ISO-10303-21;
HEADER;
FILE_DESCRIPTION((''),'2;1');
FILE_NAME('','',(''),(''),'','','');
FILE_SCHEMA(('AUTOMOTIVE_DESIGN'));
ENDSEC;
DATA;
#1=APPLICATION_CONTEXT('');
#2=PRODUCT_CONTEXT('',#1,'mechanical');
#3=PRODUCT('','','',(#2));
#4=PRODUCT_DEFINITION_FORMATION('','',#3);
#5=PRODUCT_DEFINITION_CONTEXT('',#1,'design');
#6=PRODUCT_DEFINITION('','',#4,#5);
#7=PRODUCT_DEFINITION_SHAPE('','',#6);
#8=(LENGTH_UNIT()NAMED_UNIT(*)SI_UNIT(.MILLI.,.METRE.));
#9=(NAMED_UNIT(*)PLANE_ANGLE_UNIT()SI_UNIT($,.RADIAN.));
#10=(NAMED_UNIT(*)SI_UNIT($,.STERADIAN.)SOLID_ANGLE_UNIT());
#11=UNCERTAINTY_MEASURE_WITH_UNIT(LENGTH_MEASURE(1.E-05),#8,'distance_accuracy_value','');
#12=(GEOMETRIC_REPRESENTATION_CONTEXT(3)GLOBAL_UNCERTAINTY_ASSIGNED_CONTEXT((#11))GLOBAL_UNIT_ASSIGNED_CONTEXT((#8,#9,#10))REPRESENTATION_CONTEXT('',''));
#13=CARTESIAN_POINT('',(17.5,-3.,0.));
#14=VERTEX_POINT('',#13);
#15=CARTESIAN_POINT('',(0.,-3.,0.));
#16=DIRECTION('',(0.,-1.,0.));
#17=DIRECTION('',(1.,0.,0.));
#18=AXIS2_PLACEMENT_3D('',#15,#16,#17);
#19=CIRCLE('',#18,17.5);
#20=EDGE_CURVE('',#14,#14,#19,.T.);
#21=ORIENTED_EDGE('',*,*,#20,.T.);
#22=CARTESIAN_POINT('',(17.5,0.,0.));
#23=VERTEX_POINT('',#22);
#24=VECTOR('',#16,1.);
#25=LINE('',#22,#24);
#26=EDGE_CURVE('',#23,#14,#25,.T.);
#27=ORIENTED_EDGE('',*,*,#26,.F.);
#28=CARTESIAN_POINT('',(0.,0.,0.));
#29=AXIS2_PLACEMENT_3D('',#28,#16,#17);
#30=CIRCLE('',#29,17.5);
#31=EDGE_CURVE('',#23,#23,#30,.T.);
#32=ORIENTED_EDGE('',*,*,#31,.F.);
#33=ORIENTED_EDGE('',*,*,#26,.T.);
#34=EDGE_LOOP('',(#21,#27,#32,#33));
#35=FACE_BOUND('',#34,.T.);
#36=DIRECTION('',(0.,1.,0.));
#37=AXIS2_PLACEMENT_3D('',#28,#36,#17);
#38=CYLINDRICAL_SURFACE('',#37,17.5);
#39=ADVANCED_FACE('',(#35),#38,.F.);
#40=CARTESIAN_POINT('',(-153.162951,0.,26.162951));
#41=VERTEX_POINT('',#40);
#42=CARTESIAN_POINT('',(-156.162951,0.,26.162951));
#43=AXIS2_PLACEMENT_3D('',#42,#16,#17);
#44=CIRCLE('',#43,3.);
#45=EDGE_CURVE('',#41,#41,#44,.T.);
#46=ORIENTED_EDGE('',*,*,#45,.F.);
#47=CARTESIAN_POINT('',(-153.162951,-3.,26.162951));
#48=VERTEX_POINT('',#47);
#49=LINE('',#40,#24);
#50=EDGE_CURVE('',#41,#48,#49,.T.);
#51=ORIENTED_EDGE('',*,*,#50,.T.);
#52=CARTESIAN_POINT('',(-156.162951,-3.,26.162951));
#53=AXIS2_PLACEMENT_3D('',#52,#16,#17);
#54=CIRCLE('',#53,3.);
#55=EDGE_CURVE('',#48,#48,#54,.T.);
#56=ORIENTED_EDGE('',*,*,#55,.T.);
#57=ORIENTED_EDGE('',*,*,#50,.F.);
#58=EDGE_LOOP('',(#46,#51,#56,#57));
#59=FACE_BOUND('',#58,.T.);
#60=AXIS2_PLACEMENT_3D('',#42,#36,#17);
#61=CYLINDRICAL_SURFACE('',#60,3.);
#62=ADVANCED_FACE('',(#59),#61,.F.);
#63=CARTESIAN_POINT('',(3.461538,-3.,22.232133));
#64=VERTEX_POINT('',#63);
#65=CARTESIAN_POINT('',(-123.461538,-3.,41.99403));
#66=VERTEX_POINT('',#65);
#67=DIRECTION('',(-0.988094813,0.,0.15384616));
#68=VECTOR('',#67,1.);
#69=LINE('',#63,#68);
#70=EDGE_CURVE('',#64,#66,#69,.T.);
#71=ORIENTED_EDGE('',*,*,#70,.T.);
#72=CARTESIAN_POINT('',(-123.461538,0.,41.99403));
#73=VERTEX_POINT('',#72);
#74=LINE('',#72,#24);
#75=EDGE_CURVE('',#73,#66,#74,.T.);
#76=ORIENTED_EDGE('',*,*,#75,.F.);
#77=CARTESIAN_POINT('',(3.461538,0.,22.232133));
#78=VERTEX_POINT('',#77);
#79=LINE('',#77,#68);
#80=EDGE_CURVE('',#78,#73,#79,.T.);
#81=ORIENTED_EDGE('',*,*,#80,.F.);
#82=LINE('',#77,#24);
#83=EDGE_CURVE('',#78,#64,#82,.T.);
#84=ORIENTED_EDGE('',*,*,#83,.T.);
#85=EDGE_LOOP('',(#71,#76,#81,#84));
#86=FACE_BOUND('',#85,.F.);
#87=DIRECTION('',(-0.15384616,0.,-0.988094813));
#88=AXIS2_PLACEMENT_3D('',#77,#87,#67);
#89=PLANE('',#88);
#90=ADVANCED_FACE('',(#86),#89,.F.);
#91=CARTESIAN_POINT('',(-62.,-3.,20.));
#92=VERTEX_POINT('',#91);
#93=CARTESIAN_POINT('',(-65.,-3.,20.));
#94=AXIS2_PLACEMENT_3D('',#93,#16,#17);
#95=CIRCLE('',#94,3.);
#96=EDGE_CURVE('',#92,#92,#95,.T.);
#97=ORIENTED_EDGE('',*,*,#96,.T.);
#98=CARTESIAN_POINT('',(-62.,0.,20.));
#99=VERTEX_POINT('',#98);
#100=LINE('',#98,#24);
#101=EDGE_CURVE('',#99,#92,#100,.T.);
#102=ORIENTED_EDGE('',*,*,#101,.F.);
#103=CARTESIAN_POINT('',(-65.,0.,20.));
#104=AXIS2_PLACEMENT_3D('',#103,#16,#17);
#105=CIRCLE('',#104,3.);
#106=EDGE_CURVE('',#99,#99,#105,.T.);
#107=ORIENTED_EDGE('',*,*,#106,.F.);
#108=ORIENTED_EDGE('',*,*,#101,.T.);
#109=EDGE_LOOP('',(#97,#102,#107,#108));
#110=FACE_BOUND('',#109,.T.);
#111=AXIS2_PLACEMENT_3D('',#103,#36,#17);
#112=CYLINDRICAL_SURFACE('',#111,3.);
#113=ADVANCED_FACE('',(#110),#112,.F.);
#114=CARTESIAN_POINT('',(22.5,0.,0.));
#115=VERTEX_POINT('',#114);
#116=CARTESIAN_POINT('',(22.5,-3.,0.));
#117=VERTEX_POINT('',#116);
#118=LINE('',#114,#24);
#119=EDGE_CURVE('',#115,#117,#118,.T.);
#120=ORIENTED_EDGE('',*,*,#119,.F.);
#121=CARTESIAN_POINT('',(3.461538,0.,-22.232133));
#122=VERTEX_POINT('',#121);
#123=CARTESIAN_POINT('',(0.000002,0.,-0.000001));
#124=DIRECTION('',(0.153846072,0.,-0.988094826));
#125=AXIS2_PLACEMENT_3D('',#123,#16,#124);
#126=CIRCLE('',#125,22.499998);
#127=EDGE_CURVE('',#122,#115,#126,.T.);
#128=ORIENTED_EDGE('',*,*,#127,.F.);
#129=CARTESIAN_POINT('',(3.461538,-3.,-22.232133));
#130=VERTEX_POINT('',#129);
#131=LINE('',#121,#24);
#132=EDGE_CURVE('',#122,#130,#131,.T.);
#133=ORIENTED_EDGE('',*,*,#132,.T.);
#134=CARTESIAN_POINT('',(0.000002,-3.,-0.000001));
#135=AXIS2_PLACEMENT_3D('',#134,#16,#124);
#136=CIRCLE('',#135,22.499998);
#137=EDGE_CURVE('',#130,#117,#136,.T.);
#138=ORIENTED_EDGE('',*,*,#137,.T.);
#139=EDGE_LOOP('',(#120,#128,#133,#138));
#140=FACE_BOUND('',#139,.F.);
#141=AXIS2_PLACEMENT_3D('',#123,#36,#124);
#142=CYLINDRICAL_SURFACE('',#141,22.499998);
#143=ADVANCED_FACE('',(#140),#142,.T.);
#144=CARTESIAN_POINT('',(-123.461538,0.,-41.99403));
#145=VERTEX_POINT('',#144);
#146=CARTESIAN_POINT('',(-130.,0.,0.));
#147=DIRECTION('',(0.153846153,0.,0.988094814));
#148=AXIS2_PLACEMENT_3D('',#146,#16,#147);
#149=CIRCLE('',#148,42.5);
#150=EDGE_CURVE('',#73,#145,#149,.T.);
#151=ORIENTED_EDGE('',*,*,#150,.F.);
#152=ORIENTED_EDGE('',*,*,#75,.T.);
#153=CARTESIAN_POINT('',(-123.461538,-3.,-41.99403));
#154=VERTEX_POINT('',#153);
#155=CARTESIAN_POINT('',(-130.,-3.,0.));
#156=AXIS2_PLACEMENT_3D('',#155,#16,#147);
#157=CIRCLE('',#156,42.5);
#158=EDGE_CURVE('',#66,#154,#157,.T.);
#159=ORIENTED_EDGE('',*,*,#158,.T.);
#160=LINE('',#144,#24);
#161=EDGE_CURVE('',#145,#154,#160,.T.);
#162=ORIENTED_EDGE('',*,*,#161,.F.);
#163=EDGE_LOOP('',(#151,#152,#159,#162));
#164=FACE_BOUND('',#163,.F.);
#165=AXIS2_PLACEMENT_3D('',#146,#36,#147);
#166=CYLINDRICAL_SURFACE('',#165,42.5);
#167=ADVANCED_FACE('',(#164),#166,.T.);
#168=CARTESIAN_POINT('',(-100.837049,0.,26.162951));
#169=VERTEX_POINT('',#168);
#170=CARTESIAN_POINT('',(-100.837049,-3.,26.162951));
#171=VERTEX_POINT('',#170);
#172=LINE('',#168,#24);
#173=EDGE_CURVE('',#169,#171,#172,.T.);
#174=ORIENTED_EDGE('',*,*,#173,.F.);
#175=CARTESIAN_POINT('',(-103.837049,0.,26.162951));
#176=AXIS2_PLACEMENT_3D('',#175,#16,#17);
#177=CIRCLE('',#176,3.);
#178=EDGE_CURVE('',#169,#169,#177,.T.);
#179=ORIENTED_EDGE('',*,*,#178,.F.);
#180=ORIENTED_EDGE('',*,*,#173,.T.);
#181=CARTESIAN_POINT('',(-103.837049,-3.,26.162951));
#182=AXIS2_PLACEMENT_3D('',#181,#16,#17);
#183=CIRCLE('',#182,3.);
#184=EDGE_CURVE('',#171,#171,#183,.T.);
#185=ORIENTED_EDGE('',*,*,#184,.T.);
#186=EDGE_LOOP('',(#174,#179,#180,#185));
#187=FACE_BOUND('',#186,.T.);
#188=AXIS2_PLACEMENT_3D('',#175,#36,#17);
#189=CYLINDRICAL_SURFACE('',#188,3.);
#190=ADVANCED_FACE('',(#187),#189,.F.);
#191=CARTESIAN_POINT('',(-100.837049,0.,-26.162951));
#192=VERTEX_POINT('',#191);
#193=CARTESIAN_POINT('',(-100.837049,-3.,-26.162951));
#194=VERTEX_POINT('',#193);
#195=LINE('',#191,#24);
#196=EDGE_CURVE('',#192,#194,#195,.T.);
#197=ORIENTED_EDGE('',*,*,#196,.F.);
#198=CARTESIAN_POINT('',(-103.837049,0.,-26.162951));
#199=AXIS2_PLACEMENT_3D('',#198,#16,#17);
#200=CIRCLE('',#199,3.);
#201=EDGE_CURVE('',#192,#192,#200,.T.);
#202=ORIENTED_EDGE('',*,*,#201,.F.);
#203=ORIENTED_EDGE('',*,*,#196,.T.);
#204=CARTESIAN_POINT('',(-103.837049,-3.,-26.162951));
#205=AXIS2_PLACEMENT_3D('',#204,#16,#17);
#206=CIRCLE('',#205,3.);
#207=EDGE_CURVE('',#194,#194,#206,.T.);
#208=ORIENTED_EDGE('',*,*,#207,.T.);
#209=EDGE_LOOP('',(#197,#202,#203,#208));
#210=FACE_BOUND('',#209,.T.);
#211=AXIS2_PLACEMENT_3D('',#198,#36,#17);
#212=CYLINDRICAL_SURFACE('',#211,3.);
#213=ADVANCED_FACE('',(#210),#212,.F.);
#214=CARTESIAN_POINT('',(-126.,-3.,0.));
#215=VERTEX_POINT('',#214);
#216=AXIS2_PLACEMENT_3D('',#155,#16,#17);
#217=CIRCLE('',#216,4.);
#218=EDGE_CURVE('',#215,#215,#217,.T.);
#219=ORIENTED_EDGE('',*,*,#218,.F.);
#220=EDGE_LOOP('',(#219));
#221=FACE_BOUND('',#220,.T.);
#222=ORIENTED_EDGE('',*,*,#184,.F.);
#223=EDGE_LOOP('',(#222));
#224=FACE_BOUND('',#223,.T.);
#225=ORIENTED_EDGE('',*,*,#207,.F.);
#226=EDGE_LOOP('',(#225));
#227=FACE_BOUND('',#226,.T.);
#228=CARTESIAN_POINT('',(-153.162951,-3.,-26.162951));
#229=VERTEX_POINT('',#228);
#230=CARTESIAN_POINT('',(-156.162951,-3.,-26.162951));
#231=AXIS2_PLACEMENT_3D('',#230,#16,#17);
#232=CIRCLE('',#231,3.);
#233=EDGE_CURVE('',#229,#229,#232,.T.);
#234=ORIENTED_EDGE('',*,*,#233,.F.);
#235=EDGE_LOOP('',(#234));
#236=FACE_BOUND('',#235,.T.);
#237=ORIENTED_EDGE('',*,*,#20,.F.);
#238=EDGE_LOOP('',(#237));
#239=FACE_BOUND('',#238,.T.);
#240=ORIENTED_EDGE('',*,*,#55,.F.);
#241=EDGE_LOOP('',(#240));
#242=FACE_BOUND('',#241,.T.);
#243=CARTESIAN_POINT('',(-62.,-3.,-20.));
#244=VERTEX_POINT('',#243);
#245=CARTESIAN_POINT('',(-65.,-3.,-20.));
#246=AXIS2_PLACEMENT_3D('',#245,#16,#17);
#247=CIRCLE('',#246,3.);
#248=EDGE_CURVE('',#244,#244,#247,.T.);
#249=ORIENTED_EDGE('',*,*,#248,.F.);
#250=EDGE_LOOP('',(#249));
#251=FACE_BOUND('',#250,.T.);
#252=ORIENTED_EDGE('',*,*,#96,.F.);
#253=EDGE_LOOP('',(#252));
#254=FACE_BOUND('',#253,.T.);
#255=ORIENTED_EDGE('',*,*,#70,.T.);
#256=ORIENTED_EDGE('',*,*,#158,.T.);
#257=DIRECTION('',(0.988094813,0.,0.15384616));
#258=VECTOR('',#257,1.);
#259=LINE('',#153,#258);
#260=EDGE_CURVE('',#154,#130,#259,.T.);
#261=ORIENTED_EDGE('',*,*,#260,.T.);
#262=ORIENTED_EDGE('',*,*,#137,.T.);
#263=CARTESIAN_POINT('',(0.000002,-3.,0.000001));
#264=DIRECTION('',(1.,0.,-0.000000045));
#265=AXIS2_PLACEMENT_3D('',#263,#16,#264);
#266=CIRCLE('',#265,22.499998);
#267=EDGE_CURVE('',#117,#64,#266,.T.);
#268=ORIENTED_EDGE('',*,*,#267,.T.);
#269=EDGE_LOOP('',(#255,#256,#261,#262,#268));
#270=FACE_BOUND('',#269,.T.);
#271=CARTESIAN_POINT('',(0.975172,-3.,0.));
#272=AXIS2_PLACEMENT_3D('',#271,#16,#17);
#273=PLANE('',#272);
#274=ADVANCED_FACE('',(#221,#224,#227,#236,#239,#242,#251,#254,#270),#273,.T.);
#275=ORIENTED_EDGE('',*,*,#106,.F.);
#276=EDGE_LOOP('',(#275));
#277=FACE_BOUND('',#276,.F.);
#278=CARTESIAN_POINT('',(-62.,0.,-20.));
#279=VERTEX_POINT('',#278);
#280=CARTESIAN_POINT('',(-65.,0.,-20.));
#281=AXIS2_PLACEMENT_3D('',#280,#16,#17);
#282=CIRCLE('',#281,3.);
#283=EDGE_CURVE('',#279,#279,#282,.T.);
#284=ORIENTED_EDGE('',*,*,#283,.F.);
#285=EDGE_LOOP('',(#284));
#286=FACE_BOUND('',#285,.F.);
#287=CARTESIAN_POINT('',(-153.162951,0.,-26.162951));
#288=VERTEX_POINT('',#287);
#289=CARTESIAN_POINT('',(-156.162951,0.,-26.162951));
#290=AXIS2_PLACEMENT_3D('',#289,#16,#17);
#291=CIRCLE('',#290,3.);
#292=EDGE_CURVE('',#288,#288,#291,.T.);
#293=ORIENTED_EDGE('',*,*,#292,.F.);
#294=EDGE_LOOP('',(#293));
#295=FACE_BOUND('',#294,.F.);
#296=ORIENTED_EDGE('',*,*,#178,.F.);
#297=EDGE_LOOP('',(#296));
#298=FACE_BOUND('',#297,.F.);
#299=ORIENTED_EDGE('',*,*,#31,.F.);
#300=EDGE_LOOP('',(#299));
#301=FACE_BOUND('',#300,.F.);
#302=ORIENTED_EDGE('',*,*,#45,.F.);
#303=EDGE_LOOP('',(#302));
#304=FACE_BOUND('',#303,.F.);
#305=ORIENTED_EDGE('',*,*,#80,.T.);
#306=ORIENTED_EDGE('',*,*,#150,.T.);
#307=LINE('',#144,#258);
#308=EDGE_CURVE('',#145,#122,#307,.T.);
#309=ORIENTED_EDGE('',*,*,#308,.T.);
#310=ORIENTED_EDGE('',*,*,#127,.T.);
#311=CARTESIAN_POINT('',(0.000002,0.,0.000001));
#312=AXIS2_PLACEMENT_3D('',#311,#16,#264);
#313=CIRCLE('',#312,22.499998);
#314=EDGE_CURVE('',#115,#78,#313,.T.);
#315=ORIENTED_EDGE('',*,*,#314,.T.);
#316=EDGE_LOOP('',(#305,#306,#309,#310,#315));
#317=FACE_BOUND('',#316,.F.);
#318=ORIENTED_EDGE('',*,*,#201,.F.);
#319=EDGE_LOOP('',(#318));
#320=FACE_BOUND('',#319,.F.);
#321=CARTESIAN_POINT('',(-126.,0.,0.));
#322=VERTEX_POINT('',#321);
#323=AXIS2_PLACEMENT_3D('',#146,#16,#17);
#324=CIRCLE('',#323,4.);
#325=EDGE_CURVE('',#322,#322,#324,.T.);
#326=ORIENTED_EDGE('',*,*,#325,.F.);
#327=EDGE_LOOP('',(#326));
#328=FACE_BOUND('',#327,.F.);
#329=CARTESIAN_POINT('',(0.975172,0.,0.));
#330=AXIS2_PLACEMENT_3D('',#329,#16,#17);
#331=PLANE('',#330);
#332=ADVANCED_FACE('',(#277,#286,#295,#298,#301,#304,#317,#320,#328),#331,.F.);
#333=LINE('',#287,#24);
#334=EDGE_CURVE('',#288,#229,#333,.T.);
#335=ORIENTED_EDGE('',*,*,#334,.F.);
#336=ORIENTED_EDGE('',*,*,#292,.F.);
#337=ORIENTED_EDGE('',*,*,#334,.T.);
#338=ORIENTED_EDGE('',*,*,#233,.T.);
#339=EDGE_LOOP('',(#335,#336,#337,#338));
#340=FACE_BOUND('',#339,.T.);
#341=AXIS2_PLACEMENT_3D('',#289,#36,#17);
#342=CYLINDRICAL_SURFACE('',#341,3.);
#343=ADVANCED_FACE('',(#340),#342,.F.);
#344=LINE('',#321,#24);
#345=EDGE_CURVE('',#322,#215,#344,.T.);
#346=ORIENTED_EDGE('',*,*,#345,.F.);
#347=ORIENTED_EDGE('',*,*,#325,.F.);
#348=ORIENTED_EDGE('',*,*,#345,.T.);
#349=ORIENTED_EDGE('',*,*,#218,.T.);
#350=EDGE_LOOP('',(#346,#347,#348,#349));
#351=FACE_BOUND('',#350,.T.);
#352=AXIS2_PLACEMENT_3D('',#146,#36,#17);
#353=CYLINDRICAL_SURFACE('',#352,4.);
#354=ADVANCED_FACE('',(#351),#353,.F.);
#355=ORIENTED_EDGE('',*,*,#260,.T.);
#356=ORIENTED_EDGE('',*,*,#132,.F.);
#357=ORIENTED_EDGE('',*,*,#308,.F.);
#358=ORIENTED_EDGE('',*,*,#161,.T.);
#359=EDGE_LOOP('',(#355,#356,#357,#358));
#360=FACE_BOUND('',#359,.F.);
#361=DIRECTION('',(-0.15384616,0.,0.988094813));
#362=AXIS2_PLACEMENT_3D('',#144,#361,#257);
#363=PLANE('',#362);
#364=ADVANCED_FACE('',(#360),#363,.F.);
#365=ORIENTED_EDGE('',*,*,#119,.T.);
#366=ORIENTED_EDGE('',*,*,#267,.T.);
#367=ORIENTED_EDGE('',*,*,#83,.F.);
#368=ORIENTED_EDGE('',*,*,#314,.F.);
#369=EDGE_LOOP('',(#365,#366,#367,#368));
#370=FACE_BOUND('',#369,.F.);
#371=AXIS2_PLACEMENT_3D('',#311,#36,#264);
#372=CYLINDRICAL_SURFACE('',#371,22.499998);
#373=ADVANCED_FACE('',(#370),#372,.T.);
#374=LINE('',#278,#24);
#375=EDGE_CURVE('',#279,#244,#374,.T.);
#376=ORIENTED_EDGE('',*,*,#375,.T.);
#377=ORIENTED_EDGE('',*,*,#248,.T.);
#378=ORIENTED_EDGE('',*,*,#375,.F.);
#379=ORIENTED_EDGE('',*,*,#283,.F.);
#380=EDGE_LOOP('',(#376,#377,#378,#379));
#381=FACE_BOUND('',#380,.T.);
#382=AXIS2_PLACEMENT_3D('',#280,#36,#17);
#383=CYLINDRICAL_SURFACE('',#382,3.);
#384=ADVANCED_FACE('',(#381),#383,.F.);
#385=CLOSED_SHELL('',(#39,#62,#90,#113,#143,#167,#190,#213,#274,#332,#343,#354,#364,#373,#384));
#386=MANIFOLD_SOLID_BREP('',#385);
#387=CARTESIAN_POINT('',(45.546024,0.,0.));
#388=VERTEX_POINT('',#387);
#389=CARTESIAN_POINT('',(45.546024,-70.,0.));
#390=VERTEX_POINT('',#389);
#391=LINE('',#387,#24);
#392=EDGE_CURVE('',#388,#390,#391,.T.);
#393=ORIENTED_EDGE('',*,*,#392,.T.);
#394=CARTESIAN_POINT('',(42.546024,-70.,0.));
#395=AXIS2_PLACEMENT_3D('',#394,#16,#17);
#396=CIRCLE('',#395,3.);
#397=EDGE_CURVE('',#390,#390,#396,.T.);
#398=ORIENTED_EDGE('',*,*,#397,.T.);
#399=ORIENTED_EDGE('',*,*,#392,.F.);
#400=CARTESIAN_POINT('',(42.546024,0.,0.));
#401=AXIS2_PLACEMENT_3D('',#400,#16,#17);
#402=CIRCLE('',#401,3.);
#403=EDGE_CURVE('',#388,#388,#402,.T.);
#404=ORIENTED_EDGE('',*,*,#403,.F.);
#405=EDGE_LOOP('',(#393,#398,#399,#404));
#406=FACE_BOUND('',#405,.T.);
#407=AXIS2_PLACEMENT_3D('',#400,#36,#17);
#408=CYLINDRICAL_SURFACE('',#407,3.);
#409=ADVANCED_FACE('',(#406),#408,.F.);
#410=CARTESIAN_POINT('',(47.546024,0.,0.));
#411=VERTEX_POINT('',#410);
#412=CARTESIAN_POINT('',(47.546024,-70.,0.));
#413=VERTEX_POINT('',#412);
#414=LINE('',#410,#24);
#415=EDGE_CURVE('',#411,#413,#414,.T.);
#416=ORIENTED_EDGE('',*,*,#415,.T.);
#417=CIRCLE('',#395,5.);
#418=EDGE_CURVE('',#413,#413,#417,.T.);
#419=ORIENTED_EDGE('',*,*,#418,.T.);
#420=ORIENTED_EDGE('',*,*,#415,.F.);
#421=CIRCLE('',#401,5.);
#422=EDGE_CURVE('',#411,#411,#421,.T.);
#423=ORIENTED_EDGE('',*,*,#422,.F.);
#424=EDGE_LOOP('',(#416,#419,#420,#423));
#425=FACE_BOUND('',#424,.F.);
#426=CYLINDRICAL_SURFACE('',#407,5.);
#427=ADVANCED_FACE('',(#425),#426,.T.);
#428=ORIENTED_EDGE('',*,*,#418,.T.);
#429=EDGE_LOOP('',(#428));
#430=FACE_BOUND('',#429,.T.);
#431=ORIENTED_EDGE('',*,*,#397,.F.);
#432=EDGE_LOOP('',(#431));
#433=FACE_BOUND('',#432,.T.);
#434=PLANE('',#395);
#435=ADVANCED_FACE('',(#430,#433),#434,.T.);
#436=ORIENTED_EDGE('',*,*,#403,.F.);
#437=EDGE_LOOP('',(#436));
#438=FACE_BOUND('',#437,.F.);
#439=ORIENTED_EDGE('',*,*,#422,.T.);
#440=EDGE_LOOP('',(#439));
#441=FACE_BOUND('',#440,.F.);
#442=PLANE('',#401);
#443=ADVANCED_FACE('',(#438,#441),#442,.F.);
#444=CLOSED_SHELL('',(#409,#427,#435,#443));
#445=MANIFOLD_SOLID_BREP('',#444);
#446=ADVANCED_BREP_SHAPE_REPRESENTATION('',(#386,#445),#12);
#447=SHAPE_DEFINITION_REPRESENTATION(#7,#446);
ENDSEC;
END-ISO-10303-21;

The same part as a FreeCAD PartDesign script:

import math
import FreeCAD as App
import Part
import Sketcher

V = App.Vector
Q = App.Units.Quantity

doc = App.newDocument("Part")
body = doc.addObject("PartDesign::Body", "Body")

sketch1 = body.newObject("Sketcher::SketchObject", "Sketch")
sketch1.AttachmentSupport = (doc.getObject("XZ_Plane"), [""])
sketch1.MapMode = "FlatFace"
sketch1.addGeometry(Part.ArcOfCircle(Part.Circle(V(0.000002, -0.000001, 0), V(0, 0, 1), 22.499998), math.radians(-81.150122), math.radians(0.000003)), False)
sketch1.addGeometry(Part.ArcOfCircle(Part.Circle(V(0.000002, 0.000001, 0), V(0, 0, 1), 22.499998), math.radians(-0.000003), math.radians(81.150122)), False)
sketch1.addGeometry(Part.LineSegment(V(3.461538, 22.232133, 0), V(-123.461538, 41.99403, 0)), False)
sketch1.addGeometry(Part.ArcOfCircle(Part.Circle(V(-130, 0, 0), V(0, 0, 1), 42.5), math.radians(81.150117), math.radians(278.849883)), False)
sketch1.addGeometry(Part.LineSegment(V(-123.461538, -41.99403, 0), V(3.461538, -22.232133, 0)), False)
sketch1.addGeometry(Part.Circle(V(-156.162951, -26.162951, 0), V(0, 0, 1), 3), False)
sketch1.addGeometry(Part.Circle(V(-103.837049, -26.162951, 0), V(0, 0, 1), 3), False)
sketch1.addGeometry(Part.Circle(V(-65, -20, 0), V(0, 0, 1), 3), False)
sketch1.addGeometry(Part.Circle(V(-130, 0, 0), V(0, 0, 1), 4), False)
sketch1.addGeometry(Part.Circle(V(-156.162951, 26.162951, 0), V(0, 0, 1), 3), False)
sketch1.addGeometry(Part.Circle(V(-103.837049, 26.162951, 0), V(0, 0, 1), 3), False)
sketch1.addGeometry(Part.Circle(V(0, 0, 0), V(0, 0, 1), 17.5), False)
sketch1.addGeometry(Part.Circle(V(-65, 20, 0), V(0, 0, 1), 3), False)
sketch1.addConstraint(Sketcher.Constraint("Tangent", 0, 2, 1, 1))
sketch1.addConstraint(Sketcher.Constraint("Tangent", 1, 2, 2, 1))
sketch1.addConstraint(Sketcher.Constraint("Tangent", 2, 2, 3, 1))
sketch1.addConstraint(Sketcher.Constraint("Tangent", 3, 2, 4, 1))
sketch1.addConstraint(Sketcher.Constraint("Tangent", 4, 2, 0, 1))
sketch1.addConstraint(Sketcher.Constraint("Coincident", 0, 3, -1, 1))
sketch1.addConstraint(Sketcher.Constraint("Coincident", 11, 3, -1, 1))
sketch1.addConstraint(Sketcher.Constraint("Coincident", 8, 3, 3, 3))
sketch1.addConstraint(Sketcher.Constraint("Equal", 0, 1))
sketch1.addConstraint(Sketcher.Constraint("Equal", 5, 6))
sketch1.addConstraint(Sketcher.Constraint("Equal", 6, 7))
sketch1.addConstraint(Sketcher.Constraint("Equal", 7, 9))
sketch1.addConstraint(Sketcher.Constraint("Equal", 9, 10))
sketch1.addConstraint(Sketcher.Constraint("Equal", 10, 12))
sketch1.addConstraint(Sketcher.Constraint("Symmetric", 5, 3, 9, 3, -1))
sketch1.addConstraint(Sketcher.Constraint("Symmetric", 6, 3, 10, 3, -1))
sketch1.addConstraint(Sketcher.Constraint("Symmetric", 7, 3, 12, 3, -1))
sketch1.addConstraint(Sketcher.Constraint("PointOnObject", 3, 3, -1))
sketch1.addConstraint(Sketcher.Constraint("PointOnObject", 0, 2, -1))
sketch1.addConstraint(Sketcher.Constraint("Horizontal", 5, 3, 6, 3))
sketch1.addConstraint(Sketcher.Constraint("Diameter", 5, Q("6 mm")))
sketch1.addConstraint(Sketcher.Constraint("Diameter", 8, Q("8 mm")))
sketch1.addConstraint(Sketcher.Constraint("Diameter", 11, Q("35 mm")))
sketch1.addConstraint(Sketcher.Constraint("Radius", 0, Q("22.499998 mm")))
sketch1.addConstraint(Sketcher.Constraint("Radius", 3, Q("42.5 mm")))
sketch1.addConstraint(Sketcher.Constraint("DistanceX", 3, 3, -1, 1, Q("130 mm")))
sketch1.addConstraint(Sketcher.Constraint("DistanceX", 7, 3, -1, 1, Q("65 mm")))
sketch1.addConstraint(Sketcher.Constraint("DistanceY", 7, 3, -1, 1, Q("20 mm")))
sketch1.addConstraint(Sketcher.Constraint("DistanceX", 5, 3, -1, 1, Q("156.162951 mm")))
sketch1.addConstraint(Sketcher.Constraint("DistanceY", 5, 3, -1, 1, Q("26.162951 mm")))
sketch1.addConstraint(Sketcher.Constraint("DistanceX", 6, 3, -1, 1, Q("103.837049 mm")))
pad1 = body.newObject("PartDesign::Pad", "Pad")
pad1.Profile = sketch1
pad1.Length = 3
body2 = doc.addObject("PartDesign::Body", "Body001")

sketch2 = body2.newObject("Sketcher::SketchObject", "Sketch001")
sketch2.AttachmentSupport = (doc.getObject("XZ_Plane001"), [""])
sketch2.MapMode = "FlatFace"
sketch2.addGeometry(Part.Circle(V(42.546024, 0, 0), V(0, 0, 1), 5), False)
sketch2.addGeometry(Part.Circle(V(42.546024, 0, 0), V(0, 0, 1), 3), False)
sketch2.addConstraint(Sketcher.Constraint("Coincident", 1, 3, 0, 3))
sketch2.addConstraint(Sketcher.Constraint("PointOnObject", 0, 3, -1))
sketch2.addConstraint(Sketcher.Constraint("Diameter", 0, Q("10 mm")))
sketch2.addConstraint(Sketcher.Constraint("Diameter", 1, Q("6 mm")))
sketch2.addConstraint(Sketcher.Constraint("DistanceX", -1, 1, 0, 3, Q("42.546024 mm")))
pad2 = body2.newObject("PartDesign::Pad", "Pad001")
pad2.Profile = sketch2
pad2.Length = 70

doc.recompute()
